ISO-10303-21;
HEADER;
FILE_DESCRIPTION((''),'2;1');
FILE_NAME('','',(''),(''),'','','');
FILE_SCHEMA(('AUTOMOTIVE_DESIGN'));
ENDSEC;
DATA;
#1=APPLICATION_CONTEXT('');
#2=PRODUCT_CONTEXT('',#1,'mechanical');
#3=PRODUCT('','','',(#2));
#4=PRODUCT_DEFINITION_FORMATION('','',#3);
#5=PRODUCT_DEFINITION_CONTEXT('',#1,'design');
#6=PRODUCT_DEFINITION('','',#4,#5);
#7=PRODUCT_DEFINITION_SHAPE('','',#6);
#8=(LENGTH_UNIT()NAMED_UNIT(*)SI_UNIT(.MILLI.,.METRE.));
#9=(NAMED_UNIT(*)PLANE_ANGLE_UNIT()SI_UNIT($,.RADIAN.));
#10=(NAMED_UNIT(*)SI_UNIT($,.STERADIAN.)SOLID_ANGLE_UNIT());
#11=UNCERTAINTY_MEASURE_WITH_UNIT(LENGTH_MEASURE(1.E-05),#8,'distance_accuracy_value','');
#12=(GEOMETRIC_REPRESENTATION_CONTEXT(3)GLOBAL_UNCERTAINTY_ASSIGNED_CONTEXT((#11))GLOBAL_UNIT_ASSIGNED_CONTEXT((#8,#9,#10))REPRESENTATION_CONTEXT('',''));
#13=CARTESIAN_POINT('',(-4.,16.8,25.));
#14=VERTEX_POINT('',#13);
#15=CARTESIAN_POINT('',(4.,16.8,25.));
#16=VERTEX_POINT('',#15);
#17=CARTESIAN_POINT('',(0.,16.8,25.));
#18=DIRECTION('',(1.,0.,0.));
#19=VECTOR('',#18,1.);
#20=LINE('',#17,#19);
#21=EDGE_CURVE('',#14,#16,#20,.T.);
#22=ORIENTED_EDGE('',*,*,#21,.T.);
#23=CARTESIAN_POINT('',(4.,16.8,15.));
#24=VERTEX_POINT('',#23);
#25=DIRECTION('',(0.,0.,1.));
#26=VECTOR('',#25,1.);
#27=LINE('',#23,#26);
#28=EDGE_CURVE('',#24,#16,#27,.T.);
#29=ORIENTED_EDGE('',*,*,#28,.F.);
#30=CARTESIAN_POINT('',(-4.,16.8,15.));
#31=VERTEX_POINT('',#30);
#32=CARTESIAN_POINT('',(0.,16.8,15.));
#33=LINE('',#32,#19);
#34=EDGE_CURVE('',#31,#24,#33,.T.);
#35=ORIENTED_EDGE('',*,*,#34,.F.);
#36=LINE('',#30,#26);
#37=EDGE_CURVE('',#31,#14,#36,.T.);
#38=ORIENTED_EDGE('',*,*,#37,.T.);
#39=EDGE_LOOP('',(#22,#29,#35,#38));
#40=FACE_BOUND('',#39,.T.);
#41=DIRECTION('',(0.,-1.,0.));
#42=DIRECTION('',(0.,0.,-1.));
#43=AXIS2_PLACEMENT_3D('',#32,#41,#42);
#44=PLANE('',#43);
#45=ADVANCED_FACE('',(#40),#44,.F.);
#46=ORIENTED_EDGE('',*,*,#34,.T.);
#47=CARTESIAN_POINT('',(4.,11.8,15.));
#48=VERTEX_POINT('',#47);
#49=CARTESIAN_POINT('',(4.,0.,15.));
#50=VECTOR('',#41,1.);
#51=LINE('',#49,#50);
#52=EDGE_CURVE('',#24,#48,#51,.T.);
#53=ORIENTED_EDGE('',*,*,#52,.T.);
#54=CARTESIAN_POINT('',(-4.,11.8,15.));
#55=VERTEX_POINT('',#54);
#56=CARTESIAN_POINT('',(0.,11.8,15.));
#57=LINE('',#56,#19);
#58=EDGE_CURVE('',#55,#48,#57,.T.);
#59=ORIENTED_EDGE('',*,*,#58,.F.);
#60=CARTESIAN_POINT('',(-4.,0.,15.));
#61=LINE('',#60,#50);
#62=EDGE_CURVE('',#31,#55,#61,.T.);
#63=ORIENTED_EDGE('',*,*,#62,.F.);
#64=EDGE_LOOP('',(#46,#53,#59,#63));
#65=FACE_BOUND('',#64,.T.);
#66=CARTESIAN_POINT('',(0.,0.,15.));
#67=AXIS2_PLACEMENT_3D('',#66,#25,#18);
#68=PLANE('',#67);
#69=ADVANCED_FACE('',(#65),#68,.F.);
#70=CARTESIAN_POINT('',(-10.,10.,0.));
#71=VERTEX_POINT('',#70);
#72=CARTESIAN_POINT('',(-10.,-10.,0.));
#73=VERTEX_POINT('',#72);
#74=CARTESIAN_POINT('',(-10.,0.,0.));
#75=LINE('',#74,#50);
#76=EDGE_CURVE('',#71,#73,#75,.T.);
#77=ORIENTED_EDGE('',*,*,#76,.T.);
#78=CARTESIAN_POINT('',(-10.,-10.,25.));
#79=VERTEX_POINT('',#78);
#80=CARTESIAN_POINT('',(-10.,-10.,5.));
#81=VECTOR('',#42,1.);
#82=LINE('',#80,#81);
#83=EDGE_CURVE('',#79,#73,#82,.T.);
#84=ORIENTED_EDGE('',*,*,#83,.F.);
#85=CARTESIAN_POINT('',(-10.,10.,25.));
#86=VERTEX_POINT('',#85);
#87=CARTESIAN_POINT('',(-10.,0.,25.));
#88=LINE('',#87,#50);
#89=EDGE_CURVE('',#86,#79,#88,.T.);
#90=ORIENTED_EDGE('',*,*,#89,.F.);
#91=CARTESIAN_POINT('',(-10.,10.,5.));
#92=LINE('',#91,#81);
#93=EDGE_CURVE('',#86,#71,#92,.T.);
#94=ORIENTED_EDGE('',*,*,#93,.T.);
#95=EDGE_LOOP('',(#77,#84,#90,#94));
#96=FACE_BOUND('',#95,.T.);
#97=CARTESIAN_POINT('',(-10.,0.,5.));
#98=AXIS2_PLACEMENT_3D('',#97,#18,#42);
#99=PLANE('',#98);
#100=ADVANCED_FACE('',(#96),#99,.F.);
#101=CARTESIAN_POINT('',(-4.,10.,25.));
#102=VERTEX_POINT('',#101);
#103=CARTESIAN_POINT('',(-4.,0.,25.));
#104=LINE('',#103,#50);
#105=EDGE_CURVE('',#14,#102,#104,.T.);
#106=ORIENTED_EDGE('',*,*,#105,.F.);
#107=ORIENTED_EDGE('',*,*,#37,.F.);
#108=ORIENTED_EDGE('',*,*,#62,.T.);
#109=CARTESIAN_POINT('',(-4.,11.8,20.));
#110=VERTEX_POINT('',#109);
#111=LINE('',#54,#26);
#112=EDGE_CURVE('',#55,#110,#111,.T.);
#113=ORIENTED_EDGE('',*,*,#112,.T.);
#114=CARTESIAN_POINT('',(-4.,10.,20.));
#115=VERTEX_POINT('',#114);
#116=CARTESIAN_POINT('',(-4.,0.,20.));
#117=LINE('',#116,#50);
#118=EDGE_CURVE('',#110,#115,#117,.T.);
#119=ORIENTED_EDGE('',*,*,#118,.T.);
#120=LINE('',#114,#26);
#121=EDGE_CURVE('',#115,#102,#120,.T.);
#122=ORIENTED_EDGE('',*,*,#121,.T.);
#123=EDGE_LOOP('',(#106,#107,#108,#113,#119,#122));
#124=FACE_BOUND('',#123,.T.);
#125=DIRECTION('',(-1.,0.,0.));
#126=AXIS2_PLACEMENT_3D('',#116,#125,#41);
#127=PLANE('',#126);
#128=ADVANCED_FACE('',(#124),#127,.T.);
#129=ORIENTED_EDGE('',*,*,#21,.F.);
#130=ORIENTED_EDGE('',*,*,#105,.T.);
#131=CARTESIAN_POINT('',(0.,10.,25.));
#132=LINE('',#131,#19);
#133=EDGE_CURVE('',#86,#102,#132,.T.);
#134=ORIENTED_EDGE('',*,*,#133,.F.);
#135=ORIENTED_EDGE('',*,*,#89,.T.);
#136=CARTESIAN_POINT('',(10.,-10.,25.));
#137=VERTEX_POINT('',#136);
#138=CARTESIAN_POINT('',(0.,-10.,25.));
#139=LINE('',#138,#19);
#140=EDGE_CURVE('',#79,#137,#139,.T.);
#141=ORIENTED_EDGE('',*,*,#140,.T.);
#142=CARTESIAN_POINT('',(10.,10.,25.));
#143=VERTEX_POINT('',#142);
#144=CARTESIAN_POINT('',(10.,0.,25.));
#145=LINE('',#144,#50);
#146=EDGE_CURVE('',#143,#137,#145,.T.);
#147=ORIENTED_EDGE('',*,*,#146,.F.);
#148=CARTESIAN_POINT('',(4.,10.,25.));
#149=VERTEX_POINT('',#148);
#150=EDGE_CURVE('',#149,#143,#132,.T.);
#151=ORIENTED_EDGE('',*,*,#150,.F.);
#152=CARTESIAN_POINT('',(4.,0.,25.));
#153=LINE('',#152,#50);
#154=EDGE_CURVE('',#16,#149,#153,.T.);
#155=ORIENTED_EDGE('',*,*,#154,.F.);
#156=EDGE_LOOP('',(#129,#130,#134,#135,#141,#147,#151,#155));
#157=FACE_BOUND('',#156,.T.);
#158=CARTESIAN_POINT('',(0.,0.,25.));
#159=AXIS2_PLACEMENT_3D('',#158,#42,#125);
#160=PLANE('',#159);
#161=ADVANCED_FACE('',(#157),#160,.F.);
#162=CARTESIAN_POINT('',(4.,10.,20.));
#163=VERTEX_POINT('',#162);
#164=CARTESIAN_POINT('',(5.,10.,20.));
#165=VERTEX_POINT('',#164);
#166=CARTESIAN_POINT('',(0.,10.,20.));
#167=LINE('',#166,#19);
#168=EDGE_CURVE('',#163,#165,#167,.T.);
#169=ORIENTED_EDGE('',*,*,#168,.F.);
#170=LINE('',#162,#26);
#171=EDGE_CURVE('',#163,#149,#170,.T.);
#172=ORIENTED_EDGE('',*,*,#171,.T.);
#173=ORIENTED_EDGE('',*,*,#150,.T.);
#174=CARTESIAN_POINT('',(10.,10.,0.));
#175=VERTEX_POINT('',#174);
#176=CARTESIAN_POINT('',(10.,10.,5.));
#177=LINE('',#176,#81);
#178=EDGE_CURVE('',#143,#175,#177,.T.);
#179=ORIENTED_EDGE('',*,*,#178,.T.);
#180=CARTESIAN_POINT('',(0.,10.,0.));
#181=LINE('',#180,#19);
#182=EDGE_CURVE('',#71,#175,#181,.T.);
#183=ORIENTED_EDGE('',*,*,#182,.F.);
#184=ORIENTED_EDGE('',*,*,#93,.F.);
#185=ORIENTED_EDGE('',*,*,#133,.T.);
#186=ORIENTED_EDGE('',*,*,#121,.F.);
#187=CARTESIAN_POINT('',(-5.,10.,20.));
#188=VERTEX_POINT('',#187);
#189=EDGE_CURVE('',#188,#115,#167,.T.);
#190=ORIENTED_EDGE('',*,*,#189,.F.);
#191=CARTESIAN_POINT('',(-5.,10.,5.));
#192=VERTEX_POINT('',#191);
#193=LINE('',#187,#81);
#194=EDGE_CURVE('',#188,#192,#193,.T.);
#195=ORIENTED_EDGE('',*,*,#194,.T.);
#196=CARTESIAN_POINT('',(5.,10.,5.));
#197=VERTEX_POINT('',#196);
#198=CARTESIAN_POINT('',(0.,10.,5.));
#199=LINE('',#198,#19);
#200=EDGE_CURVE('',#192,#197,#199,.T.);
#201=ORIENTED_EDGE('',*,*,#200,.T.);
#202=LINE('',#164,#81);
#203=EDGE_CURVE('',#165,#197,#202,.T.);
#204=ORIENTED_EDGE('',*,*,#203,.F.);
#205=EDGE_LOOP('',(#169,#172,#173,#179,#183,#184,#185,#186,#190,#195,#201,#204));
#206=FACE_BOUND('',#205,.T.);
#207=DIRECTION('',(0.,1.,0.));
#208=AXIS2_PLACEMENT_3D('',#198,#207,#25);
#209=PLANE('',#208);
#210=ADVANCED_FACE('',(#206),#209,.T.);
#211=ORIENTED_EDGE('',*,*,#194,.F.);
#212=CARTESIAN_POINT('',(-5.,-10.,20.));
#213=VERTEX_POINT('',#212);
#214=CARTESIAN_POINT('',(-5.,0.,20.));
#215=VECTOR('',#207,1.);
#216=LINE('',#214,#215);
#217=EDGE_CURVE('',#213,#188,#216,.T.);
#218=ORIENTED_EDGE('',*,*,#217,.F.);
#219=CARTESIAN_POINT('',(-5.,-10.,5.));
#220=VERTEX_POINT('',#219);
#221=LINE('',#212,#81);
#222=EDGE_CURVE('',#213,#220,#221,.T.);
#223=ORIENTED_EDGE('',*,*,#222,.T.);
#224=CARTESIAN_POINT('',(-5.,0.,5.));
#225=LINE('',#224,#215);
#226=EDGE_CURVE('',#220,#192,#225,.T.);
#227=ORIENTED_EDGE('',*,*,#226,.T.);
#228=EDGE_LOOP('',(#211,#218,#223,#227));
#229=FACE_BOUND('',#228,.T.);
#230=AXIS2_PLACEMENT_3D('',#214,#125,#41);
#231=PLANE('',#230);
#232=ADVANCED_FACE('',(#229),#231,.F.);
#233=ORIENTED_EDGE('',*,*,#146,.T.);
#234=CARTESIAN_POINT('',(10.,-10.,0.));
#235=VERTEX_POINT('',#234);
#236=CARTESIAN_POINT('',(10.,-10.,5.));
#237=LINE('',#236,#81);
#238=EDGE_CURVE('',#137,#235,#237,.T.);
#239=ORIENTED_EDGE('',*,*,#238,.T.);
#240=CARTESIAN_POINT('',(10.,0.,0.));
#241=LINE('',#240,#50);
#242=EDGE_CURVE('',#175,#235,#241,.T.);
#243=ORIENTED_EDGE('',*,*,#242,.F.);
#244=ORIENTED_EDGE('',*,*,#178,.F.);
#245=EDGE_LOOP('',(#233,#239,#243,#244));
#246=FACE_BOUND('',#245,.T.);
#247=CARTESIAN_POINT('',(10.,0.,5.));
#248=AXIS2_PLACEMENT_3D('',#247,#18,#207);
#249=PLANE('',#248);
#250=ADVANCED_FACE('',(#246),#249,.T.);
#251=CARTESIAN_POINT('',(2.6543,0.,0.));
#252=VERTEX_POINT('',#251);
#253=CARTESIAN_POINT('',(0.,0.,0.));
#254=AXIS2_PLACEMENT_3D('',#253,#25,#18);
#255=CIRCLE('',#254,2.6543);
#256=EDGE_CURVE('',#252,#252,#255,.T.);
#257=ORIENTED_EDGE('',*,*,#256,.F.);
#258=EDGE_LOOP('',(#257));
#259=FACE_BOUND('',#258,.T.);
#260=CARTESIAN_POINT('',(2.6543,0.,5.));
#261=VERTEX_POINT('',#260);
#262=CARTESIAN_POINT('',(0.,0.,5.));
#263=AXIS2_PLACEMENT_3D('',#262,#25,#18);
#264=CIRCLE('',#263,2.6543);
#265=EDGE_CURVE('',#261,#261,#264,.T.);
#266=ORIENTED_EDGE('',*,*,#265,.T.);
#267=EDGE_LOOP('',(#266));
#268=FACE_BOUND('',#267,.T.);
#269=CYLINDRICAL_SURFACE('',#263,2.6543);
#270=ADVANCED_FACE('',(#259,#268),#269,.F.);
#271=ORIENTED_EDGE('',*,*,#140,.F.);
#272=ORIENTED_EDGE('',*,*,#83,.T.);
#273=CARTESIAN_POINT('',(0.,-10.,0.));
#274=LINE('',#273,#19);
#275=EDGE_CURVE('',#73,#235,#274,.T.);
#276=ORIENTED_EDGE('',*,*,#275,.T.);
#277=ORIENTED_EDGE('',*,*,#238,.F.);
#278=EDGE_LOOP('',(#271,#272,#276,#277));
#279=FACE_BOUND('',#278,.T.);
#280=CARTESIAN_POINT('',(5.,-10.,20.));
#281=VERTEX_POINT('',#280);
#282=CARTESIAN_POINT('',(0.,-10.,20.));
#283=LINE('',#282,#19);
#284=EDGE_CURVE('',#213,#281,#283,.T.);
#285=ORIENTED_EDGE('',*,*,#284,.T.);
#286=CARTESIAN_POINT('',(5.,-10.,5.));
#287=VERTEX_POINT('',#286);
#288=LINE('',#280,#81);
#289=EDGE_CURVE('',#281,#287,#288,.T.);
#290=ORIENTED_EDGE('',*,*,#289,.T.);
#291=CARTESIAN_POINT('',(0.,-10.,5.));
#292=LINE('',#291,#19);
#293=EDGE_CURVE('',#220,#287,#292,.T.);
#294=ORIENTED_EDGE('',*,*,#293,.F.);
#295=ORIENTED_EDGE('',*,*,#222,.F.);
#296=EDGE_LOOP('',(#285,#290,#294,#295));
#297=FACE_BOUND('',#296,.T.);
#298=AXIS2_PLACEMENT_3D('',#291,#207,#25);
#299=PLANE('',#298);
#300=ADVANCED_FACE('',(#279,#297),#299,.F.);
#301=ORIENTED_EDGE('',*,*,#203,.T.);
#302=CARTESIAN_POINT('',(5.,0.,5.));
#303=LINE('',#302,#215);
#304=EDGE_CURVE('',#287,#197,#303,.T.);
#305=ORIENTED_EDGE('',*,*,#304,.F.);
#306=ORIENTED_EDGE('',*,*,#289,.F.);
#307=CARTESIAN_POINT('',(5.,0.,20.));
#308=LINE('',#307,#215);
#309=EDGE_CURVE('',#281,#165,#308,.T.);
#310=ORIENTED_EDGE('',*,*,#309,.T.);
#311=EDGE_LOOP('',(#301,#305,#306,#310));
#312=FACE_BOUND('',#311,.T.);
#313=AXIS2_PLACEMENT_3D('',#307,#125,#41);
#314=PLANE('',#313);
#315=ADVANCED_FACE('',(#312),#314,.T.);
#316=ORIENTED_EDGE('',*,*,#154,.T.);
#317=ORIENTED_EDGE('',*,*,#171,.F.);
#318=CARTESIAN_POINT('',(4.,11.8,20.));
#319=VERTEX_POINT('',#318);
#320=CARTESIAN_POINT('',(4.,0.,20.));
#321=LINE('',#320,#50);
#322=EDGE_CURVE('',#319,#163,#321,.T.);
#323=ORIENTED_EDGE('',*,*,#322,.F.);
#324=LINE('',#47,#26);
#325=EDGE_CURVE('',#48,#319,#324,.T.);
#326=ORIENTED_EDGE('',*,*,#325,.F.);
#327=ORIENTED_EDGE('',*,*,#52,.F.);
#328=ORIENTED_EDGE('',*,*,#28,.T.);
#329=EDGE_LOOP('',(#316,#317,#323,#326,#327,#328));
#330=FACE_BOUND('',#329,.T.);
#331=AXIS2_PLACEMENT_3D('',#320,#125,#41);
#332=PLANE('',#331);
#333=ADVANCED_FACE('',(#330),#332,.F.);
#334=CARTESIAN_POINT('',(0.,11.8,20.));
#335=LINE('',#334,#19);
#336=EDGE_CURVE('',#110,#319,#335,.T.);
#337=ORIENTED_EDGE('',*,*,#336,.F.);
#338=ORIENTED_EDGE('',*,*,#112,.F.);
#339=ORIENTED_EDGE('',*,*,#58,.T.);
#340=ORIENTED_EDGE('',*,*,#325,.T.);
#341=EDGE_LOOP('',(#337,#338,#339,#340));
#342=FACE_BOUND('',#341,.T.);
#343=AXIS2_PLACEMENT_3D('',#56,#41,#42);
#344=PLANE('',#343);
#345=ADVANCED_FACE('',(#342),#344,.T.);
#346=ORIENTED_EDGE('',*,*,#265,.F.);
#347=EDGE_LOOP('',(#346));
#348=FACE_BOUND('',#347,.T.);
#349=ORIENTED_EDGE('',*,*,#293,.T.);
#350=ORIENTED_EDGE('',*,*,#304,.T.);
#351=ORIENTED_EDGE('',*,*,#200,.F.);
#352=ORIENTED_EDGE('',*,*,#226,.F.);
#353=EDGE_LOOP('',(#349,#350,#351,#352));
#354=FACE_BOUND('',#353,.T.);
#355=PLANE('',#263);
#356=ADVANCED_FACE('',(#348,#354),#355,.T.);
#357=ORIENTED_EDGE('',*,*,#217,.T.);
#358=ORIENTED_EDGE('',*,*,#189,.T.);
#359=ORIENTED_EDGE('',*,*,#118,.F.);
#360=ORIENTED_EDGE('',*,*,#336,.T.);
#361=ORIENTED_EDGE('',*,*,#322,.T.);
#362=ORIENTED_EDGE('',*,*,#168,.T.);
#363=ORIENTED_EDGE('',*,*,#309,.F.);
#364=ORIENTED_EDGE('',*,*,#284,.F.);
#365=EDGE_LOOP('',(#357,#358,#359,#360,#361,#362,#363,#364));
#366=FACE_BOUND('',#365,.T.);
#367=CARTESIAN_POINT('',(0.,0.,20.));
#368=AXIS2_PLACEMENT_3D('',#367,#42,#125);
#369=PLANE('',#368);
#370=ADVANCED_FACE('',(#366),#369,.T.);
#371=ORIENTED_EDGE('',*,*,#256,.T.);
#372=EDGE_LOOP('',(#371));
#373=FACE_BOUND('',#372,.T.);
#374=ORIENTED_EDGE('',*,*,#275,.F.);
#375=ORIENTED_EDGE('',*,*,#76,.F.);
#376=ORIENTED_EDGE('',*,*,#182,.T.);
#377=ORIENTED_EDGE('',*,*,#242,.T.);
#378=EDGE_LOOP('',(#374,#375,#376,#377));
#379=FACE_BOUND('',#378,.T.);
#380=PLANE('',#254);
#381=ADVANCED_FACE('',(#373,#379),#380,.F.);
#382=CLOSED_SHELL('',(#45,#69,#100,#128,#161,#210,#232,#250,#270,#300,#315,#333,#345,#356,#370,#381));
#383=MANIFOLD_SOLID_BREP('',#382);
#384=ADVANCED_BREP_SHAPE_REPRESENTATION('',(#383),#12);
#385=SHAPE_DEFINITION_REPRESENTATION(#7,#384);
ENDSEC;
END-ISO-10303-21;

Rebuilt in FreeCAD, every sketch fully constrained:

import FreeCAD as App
import Part
import Sketcher
from FreeCAD import Vector

doc = App.newDocument("Part")
body = doc.addObject("PartDesign::Body", "Body")

sketch1 = body.newObject("Sketcher::SketchObject", "Sketch")
sketch1.AttachmentSupport = (doc.getObject("XY_Plane"), [""])
sketch1.MapMode = "FlatFace"
sketch1.addGeometry([
    Part.LineSegment(Vector(-10, 10, 0), Vector(-10, -10, 0)),
    Part.LineSegment(Vector(-10, -10, 0), Vector(10, -10, 0)),
    Part.LineSegment(Vector(10, -10, 0), Vector(10, 10, 0)),
    Part.LineSegment(Vector(10, 10, 0), Vector(-10, 10, 0)),
], False)
sketch1.addConstraint([
    Sketcher.Constraint("Coincident", 0, 2, 1, 1),
    Sketcher.Constraint("Coincident", 1, 2, 2, 1),
    Sketcher.Constraint("Coincident", 2, 2, 3, 1),
    Sketcher.Constraint("Coincident", 3, 2, 0, 1),
    Sketcher.Constraint("Vertical", 0),
    Sketcher.Constraint("Horizontal", 1),
    Sketcher.Constraint("Vertical", 2),
    Sketcher.Constraint("Horizontal", 3),
    Sketcher.Constraint("Symmetric", 0, 2, 2, 2, -1, 1),
    Sketcher.Constraint("Equal", 3, 0),
    Sketcher.Constraint("DistanceX", 1, 1, 1, 2, 20.0),
])
pad1 = body.newObject("PartDesign::Pad", "Pad")
pad1.Profile = sketch1
pad1.Length = 5

sketch2 = body.newObject("Sketcher::SketchObject", "Sketch001")
sketch2.AttachmentSupport = (doc.getObject("XY_Plane"), [""])
sketch2.MapMode = "FlatFace"
sketch2.AttachmentOffset = App.Placement(Vector(0, 0, 5), App.Rotation())
sketch2.addGeometry(Part.Circle(Vector(0, 0, 0), Vector(0, 0, 1), 2.7), False)
sketch2.addConstraint([
    Sketcher.Constraint("Coincident", 0, 3, -1, 1),
    Sketcher.Constraint("Diameter", 0, 5.3086),
])
doc.recompute()
hole = body.newObject("PartDesign::Hole", "Hole")
hole.Profile = sketch2
hole.ThreadType = "None"
hole.Diameter = 5.3086
hole.DepthType = "ThroughAll"

sketch3 = body.newObject("Sketcher::SketchObject", "Sketch002")
sketch3.AttachmentSupport = (doc.getObject("XY_Plane"), [""])
sketch3.MapMode = "FlatFace"
sketch3.AttachmentOffset = App.Placement(Vector(0, 0, 5), App.Rotation())
sketch3.addGeometry([
    Part.LineSegment(Vector(-10, 10, 0), Vector(-10, -10, 0)),
    Part.LineSegment(Vector(-10, -10, 0), Vector(-5, -10, 0)),
    Part.LineSegment(Vector(-5, -10, 0), Vector(-5, 10, 0)),
    Part.LineSegment(Vector(-5, 10, 0), Vector(-10, 10, 0)),
    Part.LineSegment(Vector(5, 10, 0), Vector(5, -10, 0)),
    Part.LineSegment(Vector(5, -10, 0), Vector(10, -10, 0)),
    Part.LineSegment(Vector(10, -10, 0), Vector(10, 10, 0)),
    Part.LineSegment(Vector(10, 10, 0), Vector(5, 10, 0)),
], False)
sketch3.addConstraint([
    Sketcher.Constraint("Coincident", 0, 2, 1, 1),
    Sketcher.Constraint("Coincident", 1, 2, 2, 1),
    Sketcher.Constraint("Coincident", 2, 2, 3, 1),
    Sketcher.Constraint("Coincident", 3, 2, 0, 1),
    Sketcher.Constraint("Coincident", 4, 2, 5, 1),
    Sketcher.Constraint("Coincident", 5, 2, 6, 1),
    Sketcher.Constraint("Coincident", 6, 2, 7, 1),
    Sketcher.Constraint("Coincident", 7, 2, 4, 1),
    Sketcher.Constraint("Vertical", 0),
    Sketcher.Constraint("Horizontal", 1),
    Sketcher.Constraint("Vertical", 2),
    Sketcher.Constraint("Horizontal", 3),
    Sketcher.Constraint("Vertical", 4),
    Sketcher.Constraint("Horizontal", 5),
    Sketcher.Constraint("Vertical", 6),
    Sketcher.Constraint("Horizontal", 7),
    Sketcher.Constraint("Symmetric", 2, 2, 4, 2, -1, 1),
    Sketcher.Constraint("Symmetric", 0, 2, 6, 2, -1, 1),
    Sketcher.Constraint("Horizontal", 1, 2, 4, 2),
    Sketcher.Constraint("DistanceX", 1, 1, 1, 2, 5.0),
    Sketcher.Constraint("DistanceY", 0, 2, 0, 1, 20.0),
    Sketcher.Constraint("DistanceX", 0, 2, -1, 1, 10.0),
])
pad2 = body.newObject("PartDesign::Pad", "Pad001")
pad2.Profile = sketch3
pad2.Length = 15

sketch4 = body.newObject("Sketcher::SketchObject", "Sketch003")
sketch4.AttachmentSupport = (doc.getObject("XY_Plane"), [""])
sketch4.MapMode = "FlatFace"
sketch4.AttachmentOffset = App.Placement(Vector(0, 0, 20), App.Rotation())
sketch4.addGeometry([
    Part.LineSegment(Vector(-10, 10, 0), Vector(-10, -10, 0)),
    Part.LineSegment(Vector(-10, -10, 0), Vector(10, -10, 0)),
    Part.LineSegment(Vector(10, -10, 0), Vector(10, 10, 0)),
    Part.LineSegment(Vector(10, 10, 0), Vector(-10, 10, 0)),
], False)
sketch4.addConstraint([
    Sketcher.Constraint("Coincident", 0, 2, 1, 1),
    Sketcher.Constraint("Coincident", 1, 2, 2, 1),
    Sketcher.Constraint("Coincident", 2, 2, 3, 1),
    Sketcher.Constraint("Coincident", 3, 2, 0, 1),
    Sketcher.Constraint("Vertical", 0),
    Sketcher.Constraint("Horizontal", 1),
    Sketcher.Constraint("Vertical", 2),
    Sketcher.Constraint("Horizontal", 3),
    Sketcher.Constraint("Symmetric", 0, 2, 2, 2, -1, 1),
    Sketcher.Constraint("Equal", 3, 0),
    Sketcher.Constraint("DistanceX", 1, 1, 1, 2, 20.0),
])
pad3 = body.newObject("PartDesign::Pad", "Pad002")
pad3.Profile = sketch4
pad3.Length = 5

sketch5 = body.newObject("Sketcher::SketchObject", "Sketch004")
sketch5.AttachmentSupport = (doc.getObject("XY_Plane"), [""])
sketch5.MapMode = "FlatFace"
sketch5.AttachmentOffset = App.Placement(Vector(0, 0, 25), App.Rotation())
sketch5.addGeometry([
    Part.LineSegment(Vector(-4, 11.8, 0), Vector(-4, 10, 0)),
    Part.LineSegment(Vector(-4, 10, 0), Vector(4, 10, 0)),
    Part.LineSegment(Vector(4, 10, 0), Vector(4, 11.8, 0)),
    Part.LineSegment(Vector(4, 11.8, 0), Vector(-4, 11.8, 0)),
], False)
sketch5.addConstraint([
    Sketcher.Constraint("Coincident", 0, 2, 1, 1),
    Sketcher.Constraint("Coincident", 1, 2, 2, 1),
    Sketcher.Constraint("Coincident", 2, 2, 3, 1),
    Sketcher.Constraint("Coincident", 3, 2, 0, 1),
    Sketcher.Constraint("Vertical", 0),
    Sketcher.Constraint("Horizontal", 1),
    Sketcher.Constraint("Vertical", 2),
    Sketcher.Constraint("Horizontal", 3),
    Sketcher.Constraint("DistanceX", 1, 1, 1, 2, 8.0),
    Sketcher.Constraint("DistanceY", 0, 2, 0, 1, 1.8),
    Sketcher.Constraint("DistanceX", 0, 2, -1, 1, 4.0),
    Sketcher.Constraint("DistanceY", -1, 1, 0, 2, 10.0),
])
pad4 = body.newObject("PartDesign::Pad", "Pad003")
pad4.Profile = sketch5
pad4.Length = 5
pad4.Reversed = True

sketch6 = body.newObject("Sketcher::SketchObject", "Sketch005")
sketch6.AttachmentSupport = (doc.getObject("XY_Plane"), [""])
sketch6.MapMode = "FlatFace"
sketch6.AttachmentOffset = App.Placement(Vector(0, 0, 25), App.Rotation())
sketch6.addGeometry([
    Part.LineSegment(Vector(-4, 17, 0), Vector(-4, 12, 0)),
    Part.LineSegment(Vector(-4, 12, 0), Vector(4, 12, 0)),
    Part.LineSegment(Vector(4, 12, 0), Vector(4, 17, 0)),
    Part.LineSegment(Vector(4, 17, 0), Vector(-4, 17, 0)),
], False)
sketch6.addConstraint([
    Sketcher.Constraint("Coincident", 0, 2, 1, 1),
    Sketcher.Constraint("Coincident", 1, 2, 2, 1),
    Sketcher.Constraint("Coincident", 2, 2, 3, 1),
    Sketcher.Constraint("Coincident", 3, 2, 0, 1),
    Sketcher.Constraint("Vertical", 0),
    Sketcher.Constraint("Horizontal", 1),
    Sketcher.Constraint("Vertical", 2),
    Sketcher.Constraint("Horizontal", 3),
    Sketcher.Constraint("DistanceX", 1, 1, 1, 2, 8.0),
    Sketcher.Constraint("DistanceY", 0, 2, 0, 1, 5.0),
    Sketcher.Constraint("DistanceX", 0, 2, -1, 1, 4.0),
    Sketcher.Constraint("DistanceY", -1, 1, 0, 2, 11.8),
])
pad5 = body.newObject("PartDesign::Pad", "Pad004")
pad5.Profile = sketch6
pad5.Length = 10
pad5.Reversed = True

doc.recompute()
